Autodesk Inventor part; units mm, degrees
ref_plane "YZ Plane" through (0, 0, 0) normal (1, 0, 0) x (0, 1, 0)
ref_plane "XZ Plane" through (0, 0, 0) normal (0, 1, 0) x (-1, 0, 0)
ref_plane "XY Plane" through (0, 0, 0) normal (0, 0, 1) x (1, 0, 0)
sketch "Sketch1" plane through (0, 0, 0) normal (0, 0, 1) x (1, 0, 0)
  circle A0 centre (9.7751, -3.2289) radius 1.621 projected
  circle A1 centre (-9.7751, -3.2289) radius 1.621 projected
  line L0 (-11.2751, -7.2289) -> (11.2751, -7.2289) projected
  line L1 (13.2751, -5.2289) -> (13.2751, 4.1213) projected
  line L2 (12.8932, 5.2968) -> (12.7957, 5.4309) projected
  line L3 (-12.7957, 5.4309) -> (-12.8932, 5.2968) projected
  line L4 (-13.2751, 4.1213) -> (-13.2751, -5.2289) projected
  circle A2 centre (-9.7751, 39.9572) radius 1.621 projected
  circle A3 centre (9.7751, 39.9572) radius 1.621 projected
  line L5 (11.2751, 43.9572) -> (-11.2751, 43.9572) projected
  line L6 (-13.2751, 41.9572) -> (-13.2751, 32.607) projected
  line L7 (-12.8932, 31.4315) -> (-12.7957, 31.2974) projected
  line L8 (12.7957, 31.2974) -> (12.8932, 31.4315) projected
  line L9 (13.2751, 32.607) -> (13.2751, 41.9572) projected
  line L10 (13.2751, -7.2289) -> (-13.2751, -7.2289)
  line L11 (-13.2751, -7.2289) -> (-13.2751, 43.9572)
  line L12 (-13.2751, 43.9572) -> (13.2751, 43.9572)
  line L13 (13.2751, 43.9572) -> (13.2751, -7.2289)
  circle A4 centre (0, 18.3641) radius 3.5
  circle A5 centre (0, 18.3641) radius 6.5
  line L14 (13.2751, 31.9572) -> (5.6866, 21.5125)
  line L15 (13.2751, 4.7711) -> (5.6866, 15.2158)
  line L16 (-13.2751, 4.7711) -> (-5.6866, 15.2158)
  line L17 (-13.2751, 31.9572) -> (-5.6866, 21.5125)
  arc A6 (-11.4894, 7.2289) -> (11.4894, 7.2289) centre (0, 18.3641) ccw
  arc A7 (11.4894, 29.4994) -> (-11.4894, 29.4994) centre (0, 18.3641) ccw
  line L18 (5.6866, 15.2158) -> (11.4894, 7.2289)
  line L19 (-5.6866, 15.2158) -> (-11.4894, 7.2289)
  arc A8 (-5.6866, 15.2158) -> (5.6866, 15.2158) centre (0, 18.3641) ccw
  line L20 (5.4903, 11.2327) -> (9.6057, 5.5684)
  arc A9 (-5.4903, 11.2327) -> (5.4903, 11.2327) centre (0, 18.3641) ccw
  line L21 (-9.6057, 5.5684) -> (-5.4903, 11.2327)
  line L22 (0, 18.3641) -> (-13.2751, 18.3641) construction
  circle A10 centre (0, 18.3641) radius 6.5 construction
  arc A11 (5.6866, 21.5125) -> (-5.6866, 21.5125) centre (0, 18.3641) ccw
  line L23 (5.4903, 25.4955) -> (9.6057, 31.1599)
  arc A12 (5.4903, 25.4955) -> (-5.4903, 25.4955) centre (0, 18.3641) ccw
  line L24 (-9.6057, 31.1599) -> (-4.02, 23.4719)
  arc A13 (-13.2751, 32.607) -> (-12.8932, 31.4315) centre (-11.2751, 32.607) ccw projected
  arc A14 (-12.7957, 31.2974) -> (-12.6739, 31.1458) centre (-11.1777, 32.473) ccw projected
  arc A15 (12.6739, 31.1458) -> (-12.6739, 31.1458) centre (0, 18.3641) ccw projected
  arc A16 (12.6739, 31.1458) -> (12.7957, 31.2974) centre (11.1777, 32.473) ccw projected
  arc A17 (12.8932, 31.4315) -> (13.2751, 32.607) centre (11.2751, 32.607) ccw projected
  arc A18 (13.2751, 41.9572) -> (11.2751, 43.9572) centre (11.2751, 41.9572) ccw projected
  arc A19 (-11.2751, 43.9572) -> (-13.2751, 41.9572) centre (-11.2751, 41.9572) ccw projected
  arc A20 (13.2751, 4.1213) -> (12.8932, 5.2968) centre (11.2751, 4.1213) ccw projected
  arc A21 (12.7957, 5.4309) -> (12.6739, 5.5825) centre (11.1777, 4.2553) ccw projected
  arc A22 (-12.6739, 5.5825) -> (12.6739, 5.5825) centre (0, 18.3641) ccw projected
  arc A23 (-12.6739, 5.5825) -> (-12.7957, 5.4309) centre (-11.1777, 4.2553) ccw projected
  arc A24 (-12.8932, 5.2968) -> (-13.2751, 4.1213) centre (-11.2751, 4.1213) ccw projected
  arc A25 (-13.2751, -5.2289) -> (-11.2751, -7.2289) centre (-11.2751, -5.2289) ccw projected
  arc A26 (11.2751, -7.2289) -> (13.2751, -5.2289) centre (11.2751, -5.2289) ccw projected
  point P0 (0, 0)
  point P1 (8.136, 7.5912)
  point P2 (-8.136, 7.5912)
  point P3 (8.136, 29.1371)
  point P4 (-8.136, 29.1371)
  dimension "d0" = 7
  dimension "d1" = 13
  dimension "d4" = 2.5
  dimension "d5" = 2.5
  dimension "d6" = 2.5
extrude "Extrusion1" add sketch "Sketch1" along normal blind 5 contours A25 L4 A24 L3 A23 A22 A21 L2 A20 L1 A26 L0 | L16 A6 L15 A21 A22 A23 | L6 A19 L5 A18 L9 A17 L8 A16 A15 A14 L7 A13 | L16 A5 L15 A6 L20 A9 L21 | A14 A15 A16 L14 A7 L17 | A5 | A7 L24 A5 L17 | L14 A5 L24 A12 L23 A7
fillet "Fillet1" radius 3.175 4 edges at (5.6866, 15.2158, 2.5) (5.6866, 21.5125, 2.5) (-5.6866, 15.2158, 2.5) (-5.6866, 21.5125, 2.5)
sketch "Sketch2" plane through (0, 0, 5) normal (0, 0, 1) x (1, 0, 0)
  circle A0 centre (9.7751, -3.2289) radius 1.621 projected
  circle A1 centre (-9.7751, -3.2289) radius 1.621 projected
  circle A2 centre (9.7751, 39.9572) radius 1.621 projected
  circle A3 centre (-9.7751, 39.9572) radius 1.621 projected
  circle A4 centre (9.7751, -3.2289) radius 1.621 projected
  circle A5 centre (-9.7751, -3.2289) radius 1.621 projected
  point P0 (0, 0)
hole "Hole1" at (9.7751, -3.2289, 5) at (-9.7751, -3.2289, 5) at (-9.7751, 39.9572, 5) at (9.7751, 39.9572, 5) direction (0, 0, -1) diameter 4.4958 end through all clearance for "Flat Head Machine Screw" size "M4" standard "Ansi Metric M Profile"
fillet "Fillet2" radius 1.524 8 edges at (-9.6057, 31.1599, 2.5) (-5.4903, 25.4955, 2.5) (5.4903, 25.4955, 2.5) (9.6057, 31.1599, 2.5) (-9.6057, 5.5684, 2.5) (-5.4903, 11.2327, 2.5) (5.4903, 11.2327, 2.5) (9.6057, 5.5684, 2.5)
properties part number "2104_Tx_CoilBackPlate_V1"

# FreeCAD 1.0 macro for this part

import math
import FreeCAD as App
import Part
import Sketcher
from FreeCAD import Vector
Q = App.Units.Quantity


def edges_at(feature, points):
    """Names of the edges that pass closest to the given points."""
    edges = feature.Shape.Edges
    near = lambda p: min(range(len(edges)), key=lambda i: edges[i].distToShape(Part.Vertex(*p))[0])
    return sorted({f"Edge{near(p) + 1}" for p in points})

doc = App.newDocument("Part")
body = doc.addObject("PartDesign::Body", "Body")

sketch1 = body.newObject("Sketcher::SketchObject", "Sketch")
sketch1.AttachmentSupport = (doc.getObject("XY_Plane"), [""])
sketch1.MapMode = "FlatFace"
sketch1.addGeometry(Part.ArcOfCircle(Part.Circle(Vector(-11.2751, -5.2289, 0), Vector(0, 0, 1), 2), math.radians(180), math.radians(270)), False)
sketch1.addGeometry(Part.LineSegment(Vector(-11.2751, -7.2289, 0), Vector(11.2751, -7.2289, 0)), False)
sketch1.addGeometry(Part.ArcOfCircle(Part.Circle(Vector(11.2751, -5.2289, 0), Vector(0, 0, 1), 2), math.radians(-90), math.radians(0)), False)
sketch1.addGeometry(Part.LineSegment(Vector(13.2751, -5.2289, 0), Vector(13.2751, 4.1213, 0)), False)
sketch1.addGeometry(Part.ArcOfCircle(Part.Circle(Vector(11.2751, 4.1213, 0), Vector(0, 0, 1), 2), math.radians(0), math.radians(35.997254)), False)
sketch1.addGeometry(Part.LineSegment(Vector(12.8932, 5.2968, 0), Vector(12.7957, 5.4309, 0)), False)
sketch1.addGeometry(Part.LineSegment(Vector(12.7957, 5.4309, 0), Vector(5.6866, 15.2158, 0)), False)
sketch1.addGeometry(Part.ArcOfCircle(Part.Circle(Vector(0, 18.3641, 0), Vector(0, 0, 1), 6.5), math.radians(-28.970442), math.radians(28.971214)), False)
sketch1.addGeometry(Part.LineSegment(Vector(5.6866, 21.5125, 0), Vector(12.7957, 31.2974, 0)), False)
sketch1.addGeometry(Part.LineSegment(Vector(12.7957, 31.2974, 0), Vector(12.8932, 31.4315, 0)), False)
sketch1.addGeometry(Part.ArcOfCircle(Part.Circle(Vector(11.2751, 32.607, 0), Vector(0, 0, 1), 2.000012), math.radians(-35.997254), math.radians(0)), False)
sketch1.addGeometry(Part.LineSegment(Vector(13.2751, 32.607, 0), Vector(13.2751, 41.9572, 0)), False)
sketch1.addGeometry(Part.ArcOfCircle(Part.Circle(Vector(11.2751, 41.9572, 0), Vector(0, 0, 1), 2), math.radians(0), math.radians(90)), False)
sketch1.addGeometry(Part.LineSegment(Vector(11.2751, 43.9572, 0), Vector(-11.2751, 43.9572, 0)), False)
sketch1.addGeometry(Part.ArcOfCircle(Part.Circle(Vector(-11.2751, 41.9572, 0), Vector(0, 0, 1), 2), math.radians(90), math.radians(180)), False)
sketch1.addGeometry(Part.LineSegment(Vector(-13.2751, 41.9572, 0), Vector(-13.2751, 32.607, 0)), False)
sketch1.addGeometry(Part.ArcOfCircle(Part.Circle(Vector(-11.2751, 32.607, 0), Vector(0, 0, 1), 2), math.radians(180), math.radians(215.997254)), False)
sketch1.addGeometry(Part.LineSegment(Vector(-12.8932, 31.4315, 0), Vector(-12.7957, 31.2974, 0)), False)
sketch1.addGeometry(Part.LineSegment(Vector(-12.7957, 31.2974, 0), Vector(-5.6866, 21.5125, 0)), False)
sketch1.addGeometry(Part.ArcOfCircle(Part.Circle(Vector(0, 18.3641, 0), Vector(0, 0, 1), 6.5), math.radians(151.028786), math.radians(208.970442)), False)
sketch1.addGeometry(Part.LineSegment(Vector(-5.6866, 15.2158, 0), Vector(-12.7957, 5.4309, 0)), False)
sketch1.addGeometry(Part.LineSegment(Vector(-12.7957, 5.4309, 0), Vector(-12.8932, 5.2968, 0)), False)
sketch1.addGeometry(Part.ArcOfCircle(Part.Circle(Vector(-11.2751, 4.1213, 0), Vector(0, 0, 1), 2.000012), math.radians(144.002746), math.radians(180)), False)
sketch1.addGeometry(Part.LineSegment(Vector(-13.2751, 4.1213, 0), Vector(-13.2751, -5.2289, 0)), False)
sketch1.addGeometry(Part.Circle(Vector(-9.7751, -3.2289, 0), Vector(0, 0, 1), 1.621), False)
sketch1.addGeometry(Part.Circle(Vector(9.7751, -3.2289, 0), Vector(0, 0, 1), 1.621), False)
sketch1.addGeometry(Part.ArcOfCircle(Part.Circle(Vector(0, 18.3641, 0), Vector(0, 0, 1), 15.999968), math.radians(-126.895466), math.radians(-53.104534)), False)
sketch1.addGeometry(Part.LineSegment(Vector(-9.6057, 5.5684, 0), Vector(-5.4903, 11.2327, 0)), False)
sketch1.addGeometry(Part.ArcOfCircle(Part.Circle(Vector(0, 18.3641, 0), Vector(0, 0, 1), 9.000014), math.radians(-127.591842), math.radians(-52.408158)), False)
sketch1.addGeometry(Part.LineSegment(Vector(5.4903, 11.2327, 0), Vector(9.6057, 5.5684, 0)), False)
sketch1.addGeometry(Part.Circle(Vector(0, 18.3641, 0), Vector(0, 0, 1), 3.5), False)
sketch1.addGeometry(Part.LineSegment(Vector(-5.490262, 25.495527, 0), Vector(-9.6057, 31.1599, 0)), False)
sketch1.addGeometry(Part.ArcOfCircle(Part.Circle(Vector(0, 18.3641, 0), Vector(0, 0, 1), 16.000038), math.radians(53.104749), math.radians(126.895251)), False)
sketch1.addGeometry(Part.LineSegment(Vector(9.6057, 31.1599, 0), Vector(5.4903, 25.4955, 0)), False)
sketch1.addGeometry(Part.ArcOfCircle(Part.Circle(Vector(0, 18.3641, 0), Vector(0, 0, 1), 9.000014), math.radians(52.408158), math.radians(127.591842)), False)
sketch1.addGeometry(Part.Circle(Vector(-9.7751, 39.9572, 0), Vector(0, 0, 1), 1.621), False)
sketch1.addGeometry(Part.Circle(Vector(9.7751, 39.9572, 0), Vector(0, 0, 1), 1.621), False)
sketch1.addConstraint(Sketcher.Constraint("Tangent", 0, 2, 1, 1))
sketch1.addConstraint(Sketcher.Constraint("Tangent", 1, 2, 2, 1))
sketch1.addConstraint(Sketcher.Constraint("Tangent", 2, 2, 3, 1))
sketch1.addConstraint(Sketcher.Constraint("Tangent", 3, 2, 4, 1))
sketch1.addConstraint(Sketcher.Constraint("Tangent", 4, 2, 5, 1))
sketch1.addConstraint(Sketcher.Constraint("Coincident", 5, 2, 6, 1))
sketch1.addConstraint(Sketcher.Constraint("Coincident", 6, 2, 7, 1))
sketch1.addConstraint(Sketcher.Constraint("Coincident", 7, 2, 8, 1))
sketch1.addConstraint(Sketcher.Constraint("Coincident", 8, 2, 9, 1))
sketch1.addConstraint(Sketcher.Constraint("Tangent", 9, 2, 10, 1))
sketch1.addConstraint(Sketcher.Constraint("Tangent", 10, 2, 11, 1))
sketch1.addConstraint(Sketcher.Constraint("Tangent", 11, 2, 12, 1))
sketch1.addConstraint(Sketcher.Constraint("Tangent", 12, 2, 13, 1))
sketch1.addConstraint(Sketcher.Constraint("Tangent", 13, 2, 14, 1))
sketch1.addConstraint(Sketcher.Constraint("Tangent", 14, 2, 15, 1))
sketch1.addConstraint(Sketcher.Constraint("Tangent", 15, 2, 16, 1))
sketch1.addConstraint(Sketcher.Constraint("Tangent", 16, 2, 17, 1))
sketch1.addConstraint(Sketcher.Constraint("Coincident", 17, 2, 18, 1))
sketch1.addConstraint(Sketcher.Constraint("Coincident", 18, 2, 19, 1))
sketch1.addConstraint(Sketcher.Constraint("Coincident", 19, 2, 20, 1))
sketch1.addConstraint(Sketcher.Constraint("Coincident", 20, 2, 21, 1))
sketch1.addConstraint(Sketcher.Constraint("Tangent", 21, 2, 22, 1))
sketch1.addConstraint(Sketcher.Constraint("Tangent", 22, 2, 23, 1))
sketch1.addConstraint(Sketcher.Constraint("Tangent", 23, 2, 0, 1))
sketch1.addConstraint(Sketcher.Constraint("Coincident", 26, 1, 27, 1))
sketch1.addConstraint(Sketcher.Constraint("Coincident", 27, 2, 28, 1))
sketch1.addConstraint(Sketcher.Constraint("Coincident", 28, 2, 29, 1))
sketch1.addConstraint(Sketcher.Constraint("Coincident", 29, 2, 26, 2))
sketch1.addConstraint(Sketcher.Constraint("Coincident", 31, 2, 32, 2))
sketch1.addConstraint(Sketcher.Constraint("Coincident", 32, 1, 33, 1))
sketch1.addConstraint(Sketcher.Constraint("Coincident", 33, 2, 34, 1))
sketch1.addConstraint(Sketcher.Constraint("Coincident", 34, 2, 31, 1))
sketch1.addConstraint(Sketcher.Constraint("Horizontal", 1))
sketch1.addConstraint(Sketcher.Constraint("Vertical", 3))
sketch1.addConstraint(Sketcher.Constraint("Vertical", 11))
sketch1.addConstraint(Sketcher.Constraint("Horizontal", 13))
sketch1.addConstraint(Sketcher.Constraint("Vertical", 15))
sketch1.addConstraint(Sketcher.Constraint("Vertical", 23))
sketch1.addConstraint(Sketcher.Constraint("Coincident", 19, 3, 7, 3))
sketch1.addConstraint(Sketcher.Constraint("Coincident", 26, 3, 7, 3))
sketch1.addConstraint(Sketcher.Constraint("Coincident", 28, 3, 7, 3))
sketch1.addConstraint(Sketcher.Constraint("Coincident", 30, 3, 7, 3))
sketch1.addConstraint(Sketcher.Constraint("Coincident", 32, 3, 7, 3))
sketch1.addConstraint(Sketcher.Constraint("Coincident", 34, 3, 7, 3))
sketch1.addConstraint(Sketcher.Constraint("Equal", 0, 2))
sketch1.addConstraint(Sketcher.Constraint("Equal", 2, 4))
sketch1.addConstraint(Sketcher.Constraint("Equal", 4, 10))
sketch1.addConstraint(Sketcher.Constraint("Equal", 10, 12))
sketch1.addConstraint(Sketcher.Constraint("Equal", 12, 14))
sketch1.addConstraint(Sketcher.Constraint("Equal", 14, 16))
sketch1.addConstraint(Sketcher.Constraint("Equal", 7, 19))
sketch1.addConstraint(Sketcher.Constraint("Equal", 16, 22))
sketch1.addConstraint(Sketcher.Constraint("Equal", 24, 25))
sketch1.addConstraint(Sketcher.Constraint("Equal", 26, 32))
sketch1.addConstraint(Sketcher.Constraint("Equal", 28, 34))
sketch1.addConstraint(Sketcher.Constraint("Equal", 25, 35))
sketch1.addConstraint(Sketcher.Constraint("Equal", 35, 36))
sketch1.addConstraint(Sketcher.Constraint("Symmetric", 10, 3, 16, 3, -2))
sketch1.addConstraint(Sketcher.Constraint("Symmetric", 4, 3, 22, 3, -2))
sketch1.addConstraint(Sketcher.Constraint("Symmetric", 24, 3, 25, 3, -2))
sketch1.addConstraint(Sketcher.Constraint("Symmetric", 35, 3, 36, 3, -2))
sketch1.addConstraint(Sketcher.Constraint("Symmetric", 8, 2, 17, 2, -2))
sketch1.addConstraint(Sketcher.Constraint("Symmetric", 7, 2, 18, 2, -2))
sketch1.addConstraint(Sketcher.Constraint("Symmetric", 5, 2, 20, 2, -2))
sketch1.addConstraint(Sketcher.Constraint("Parallel", 5, 6))
sketch1.addConstraint(Sketcher.Constraint("Parallel", 8, 9))
sketch1.addConstraint(Sketcher.Constraint("Parallel", 6, 17))
sketch1.addConstraint(Sketcher.Constraint("Parallel", 9, 20))
sketch1.addConstraint(Sketcher.Constraint("Parallel", 21, 27))
sketch1.addConstraint(Sketcher.Constraint("Parallel", 18, 29))
sketch1.addConstraint(Sketcher.Constraint("Parallel", 29, 31))
sketch1.addConstraint(Sketcher.Constraint("Parallel", 27, 33))
sketch1.addConstraint(Sketcher.Constraint("Horizontal", 27, 2, 28, 2))
sketch1.addConstraint(Sketcher.Constraint("Horizontal", 31, 2, 32, 1))
sketch1.addConstraint(Sketcher.Constraint("Vertical", 4, 3, 10, 3))
sketch1.addConstraint(Sketcher.Constraint("Vertical", 24, 3, 35, 3))
sketch1.addConstraint(Sketcher.Constraint("Vertical", 6, 2, 7, 2))
sketch1.addConstraint(Sketcher.Constraint("Vertical", 5, 2, 8, 2))
sketch1.addConstraint(Sketcher.Constraint("Vertical", 26, 1, 31, 2))
sketch1.addConstraint(Sketcher.Constraint("Equal", 3, 11))
sketch1.addConstraint(Sketcher.Constraint("Diameter", 30, 7.0))
sketch1.addConstraint(Sketcher.Constraint("Radius", 7, 6.5))
sketch1.addConstraint(Sketcher.Constraint("Radius", 0, 2.0))
sketch1.addConstraint(Sketcher.Constraint("Radius", 26, 16.0))
sketch1.addConstraint(Sketcher.Constraint("Radius", 28, 9.0))
sketch1.addConstraint(Sketcher.Constraint("Angle", 6, Q("125.9998 deg")))
sketch1.addConstraint(Sketcher.Constraint("Diameter", 24, 3.242))
sketch1.addConstraint(Sketcher.Constraint("DistanceY", 0, 3, 24, 3, 2.0))
sketch1.addConstraint(Sketcher.Constraint("DistanceY", 35, 3, 14, 3, 2.0))
sketch1.addConstraint(Sketcher.Constraint("DistanceX", 0, 3, 24, 3, 1.5))
sketch1.addConstraint(Sketcher.Constraint("DistanceY", -1, 1, 31, 2, 31.16))
sketch1.addConstraint(Sketcher.Constraint("DistanceX", 20, 2, 26, 1, 3.19))
sketch1.addConstraint(Sketcher.Constraint("DistanceX", 1, 1, 1, 2, 22.5502))
sketch1.addConstraint(Sketcher.Constraint("DistanceY", 3, 1, 3, 2, 9.3502))
sketch1.addConstraint(Sketcher.Constraint("DistanceY", 0, 3, -1, 1, 5.229))
sketch1.addConstraint(Sketcher.Constraint("DistanceY", -1, 1, 7, 3, 18.364))
pad1 = body.newObject("PartDesign::Pad", "Pad")
pad1.Profile = sketch1
pad1.Length = 5
doc.recompute()

fillet = body.newObject("PartDesign::Fillet", "Fillet")
fillet.Base = (pad1, edges_at(pad1, [
    (5.687, 15.216, 2.5),
    (5.687, 21.512, 2.5),
    (-5.687, 15.216, 2.5),
    (-5.687, 21.512, 2.5),
]))
fillet.Radius = 3.175

sketch2 = body.newObject("Sketcher::SketchObject", "Sketch001")
sketch2.AttachmentSupport = (doc.getObject("XY_Plane"), [""])
sketch2.MapMode = "FlatFace"
sketch2.AttachmentOffset = App.Placement(Vector(0, 0, 5), App.Rotation())
sketch2.addGeometry(Part.Circle(Vector(9.7751, -3.2289, 0), Vector(0, 0, 1), 2.2479), False)
sketch2.addGeometry(Part.Circle(Vector(-9.7751, -3.2289, 0), Vector(0, 0, 1), 2.2479), False)
sketch2.addGeometry(Part.Circle(Vector(-9.7751, 39.9572, 0), Vector(0, 0, 1), 2.2479), False)
sketch2.addGeometry(Part.Circle(Vector(9.7751, 39.9572, 0), Vector(0, 0, 1), 2.2479), False)
sketch2.addConstraint(Sketcher.Constraint("Equal", 0, 1))
sketch2.addConstraint(Sketcher.Constraint("Equal", 1, 2))
sketch2.addConstraint(Sketcher.Constraint("Equal", 2, 3))
sketch2.addConstraint(Sketcher.Constraint("Symmetric", 0, 3, 1, 3, -2))
sketch2.addConstraint(Sketcher.Constraint("Symmetric", 2, 3, 3, 3, -2))
sketch2.addConstraint(Sketcher.Constraint("Vertical", 1, 3, 2, 3))
sketch2.addConstraint(Sketcher.Constraint("Diameter", 0, 4.4958))
sketch2.addConstraint(Sketcher.Constraint("DistanceX", -1, 1, 0, 3, 9.775))
sketch2.addConstraint(Sketcher.Constraint("DistanceY", 0, 3, -1, 1, 3.229))
sketch2.addConstraint(Sketcher.Constraint("DistanceY", 1, 3, 2, 3, 43.186))
doc.recompute()
hole = body.newObject("PartDesign::Hole", "Hole")
hole.Profile = sketch2
hole.ThreadType = "None"
hole.Diameter = 4.4958
hole.DepthType = "ThroughAll"
doc.recompute()

fillet2 = body.newObject("PartDesign::Fillet", "Fillet001")
fillet2.Base = (hole, edges_at(hole, [
    (-9.606, 31.16, 2.5),
    (-5.49, 25.495, 2.5),
    (5.49, 25.495, 2.5),
    (9.606, 31.16, 2.5),
    (-9.606, 5.568, 2.5),
    (-5.49, 11.233, 2.5),
    (5.49, 11.233, 2.5),
    (9.606, 5.568, 2.5),
]))
fillet2.Radius = 1.524

doc.recompute()
